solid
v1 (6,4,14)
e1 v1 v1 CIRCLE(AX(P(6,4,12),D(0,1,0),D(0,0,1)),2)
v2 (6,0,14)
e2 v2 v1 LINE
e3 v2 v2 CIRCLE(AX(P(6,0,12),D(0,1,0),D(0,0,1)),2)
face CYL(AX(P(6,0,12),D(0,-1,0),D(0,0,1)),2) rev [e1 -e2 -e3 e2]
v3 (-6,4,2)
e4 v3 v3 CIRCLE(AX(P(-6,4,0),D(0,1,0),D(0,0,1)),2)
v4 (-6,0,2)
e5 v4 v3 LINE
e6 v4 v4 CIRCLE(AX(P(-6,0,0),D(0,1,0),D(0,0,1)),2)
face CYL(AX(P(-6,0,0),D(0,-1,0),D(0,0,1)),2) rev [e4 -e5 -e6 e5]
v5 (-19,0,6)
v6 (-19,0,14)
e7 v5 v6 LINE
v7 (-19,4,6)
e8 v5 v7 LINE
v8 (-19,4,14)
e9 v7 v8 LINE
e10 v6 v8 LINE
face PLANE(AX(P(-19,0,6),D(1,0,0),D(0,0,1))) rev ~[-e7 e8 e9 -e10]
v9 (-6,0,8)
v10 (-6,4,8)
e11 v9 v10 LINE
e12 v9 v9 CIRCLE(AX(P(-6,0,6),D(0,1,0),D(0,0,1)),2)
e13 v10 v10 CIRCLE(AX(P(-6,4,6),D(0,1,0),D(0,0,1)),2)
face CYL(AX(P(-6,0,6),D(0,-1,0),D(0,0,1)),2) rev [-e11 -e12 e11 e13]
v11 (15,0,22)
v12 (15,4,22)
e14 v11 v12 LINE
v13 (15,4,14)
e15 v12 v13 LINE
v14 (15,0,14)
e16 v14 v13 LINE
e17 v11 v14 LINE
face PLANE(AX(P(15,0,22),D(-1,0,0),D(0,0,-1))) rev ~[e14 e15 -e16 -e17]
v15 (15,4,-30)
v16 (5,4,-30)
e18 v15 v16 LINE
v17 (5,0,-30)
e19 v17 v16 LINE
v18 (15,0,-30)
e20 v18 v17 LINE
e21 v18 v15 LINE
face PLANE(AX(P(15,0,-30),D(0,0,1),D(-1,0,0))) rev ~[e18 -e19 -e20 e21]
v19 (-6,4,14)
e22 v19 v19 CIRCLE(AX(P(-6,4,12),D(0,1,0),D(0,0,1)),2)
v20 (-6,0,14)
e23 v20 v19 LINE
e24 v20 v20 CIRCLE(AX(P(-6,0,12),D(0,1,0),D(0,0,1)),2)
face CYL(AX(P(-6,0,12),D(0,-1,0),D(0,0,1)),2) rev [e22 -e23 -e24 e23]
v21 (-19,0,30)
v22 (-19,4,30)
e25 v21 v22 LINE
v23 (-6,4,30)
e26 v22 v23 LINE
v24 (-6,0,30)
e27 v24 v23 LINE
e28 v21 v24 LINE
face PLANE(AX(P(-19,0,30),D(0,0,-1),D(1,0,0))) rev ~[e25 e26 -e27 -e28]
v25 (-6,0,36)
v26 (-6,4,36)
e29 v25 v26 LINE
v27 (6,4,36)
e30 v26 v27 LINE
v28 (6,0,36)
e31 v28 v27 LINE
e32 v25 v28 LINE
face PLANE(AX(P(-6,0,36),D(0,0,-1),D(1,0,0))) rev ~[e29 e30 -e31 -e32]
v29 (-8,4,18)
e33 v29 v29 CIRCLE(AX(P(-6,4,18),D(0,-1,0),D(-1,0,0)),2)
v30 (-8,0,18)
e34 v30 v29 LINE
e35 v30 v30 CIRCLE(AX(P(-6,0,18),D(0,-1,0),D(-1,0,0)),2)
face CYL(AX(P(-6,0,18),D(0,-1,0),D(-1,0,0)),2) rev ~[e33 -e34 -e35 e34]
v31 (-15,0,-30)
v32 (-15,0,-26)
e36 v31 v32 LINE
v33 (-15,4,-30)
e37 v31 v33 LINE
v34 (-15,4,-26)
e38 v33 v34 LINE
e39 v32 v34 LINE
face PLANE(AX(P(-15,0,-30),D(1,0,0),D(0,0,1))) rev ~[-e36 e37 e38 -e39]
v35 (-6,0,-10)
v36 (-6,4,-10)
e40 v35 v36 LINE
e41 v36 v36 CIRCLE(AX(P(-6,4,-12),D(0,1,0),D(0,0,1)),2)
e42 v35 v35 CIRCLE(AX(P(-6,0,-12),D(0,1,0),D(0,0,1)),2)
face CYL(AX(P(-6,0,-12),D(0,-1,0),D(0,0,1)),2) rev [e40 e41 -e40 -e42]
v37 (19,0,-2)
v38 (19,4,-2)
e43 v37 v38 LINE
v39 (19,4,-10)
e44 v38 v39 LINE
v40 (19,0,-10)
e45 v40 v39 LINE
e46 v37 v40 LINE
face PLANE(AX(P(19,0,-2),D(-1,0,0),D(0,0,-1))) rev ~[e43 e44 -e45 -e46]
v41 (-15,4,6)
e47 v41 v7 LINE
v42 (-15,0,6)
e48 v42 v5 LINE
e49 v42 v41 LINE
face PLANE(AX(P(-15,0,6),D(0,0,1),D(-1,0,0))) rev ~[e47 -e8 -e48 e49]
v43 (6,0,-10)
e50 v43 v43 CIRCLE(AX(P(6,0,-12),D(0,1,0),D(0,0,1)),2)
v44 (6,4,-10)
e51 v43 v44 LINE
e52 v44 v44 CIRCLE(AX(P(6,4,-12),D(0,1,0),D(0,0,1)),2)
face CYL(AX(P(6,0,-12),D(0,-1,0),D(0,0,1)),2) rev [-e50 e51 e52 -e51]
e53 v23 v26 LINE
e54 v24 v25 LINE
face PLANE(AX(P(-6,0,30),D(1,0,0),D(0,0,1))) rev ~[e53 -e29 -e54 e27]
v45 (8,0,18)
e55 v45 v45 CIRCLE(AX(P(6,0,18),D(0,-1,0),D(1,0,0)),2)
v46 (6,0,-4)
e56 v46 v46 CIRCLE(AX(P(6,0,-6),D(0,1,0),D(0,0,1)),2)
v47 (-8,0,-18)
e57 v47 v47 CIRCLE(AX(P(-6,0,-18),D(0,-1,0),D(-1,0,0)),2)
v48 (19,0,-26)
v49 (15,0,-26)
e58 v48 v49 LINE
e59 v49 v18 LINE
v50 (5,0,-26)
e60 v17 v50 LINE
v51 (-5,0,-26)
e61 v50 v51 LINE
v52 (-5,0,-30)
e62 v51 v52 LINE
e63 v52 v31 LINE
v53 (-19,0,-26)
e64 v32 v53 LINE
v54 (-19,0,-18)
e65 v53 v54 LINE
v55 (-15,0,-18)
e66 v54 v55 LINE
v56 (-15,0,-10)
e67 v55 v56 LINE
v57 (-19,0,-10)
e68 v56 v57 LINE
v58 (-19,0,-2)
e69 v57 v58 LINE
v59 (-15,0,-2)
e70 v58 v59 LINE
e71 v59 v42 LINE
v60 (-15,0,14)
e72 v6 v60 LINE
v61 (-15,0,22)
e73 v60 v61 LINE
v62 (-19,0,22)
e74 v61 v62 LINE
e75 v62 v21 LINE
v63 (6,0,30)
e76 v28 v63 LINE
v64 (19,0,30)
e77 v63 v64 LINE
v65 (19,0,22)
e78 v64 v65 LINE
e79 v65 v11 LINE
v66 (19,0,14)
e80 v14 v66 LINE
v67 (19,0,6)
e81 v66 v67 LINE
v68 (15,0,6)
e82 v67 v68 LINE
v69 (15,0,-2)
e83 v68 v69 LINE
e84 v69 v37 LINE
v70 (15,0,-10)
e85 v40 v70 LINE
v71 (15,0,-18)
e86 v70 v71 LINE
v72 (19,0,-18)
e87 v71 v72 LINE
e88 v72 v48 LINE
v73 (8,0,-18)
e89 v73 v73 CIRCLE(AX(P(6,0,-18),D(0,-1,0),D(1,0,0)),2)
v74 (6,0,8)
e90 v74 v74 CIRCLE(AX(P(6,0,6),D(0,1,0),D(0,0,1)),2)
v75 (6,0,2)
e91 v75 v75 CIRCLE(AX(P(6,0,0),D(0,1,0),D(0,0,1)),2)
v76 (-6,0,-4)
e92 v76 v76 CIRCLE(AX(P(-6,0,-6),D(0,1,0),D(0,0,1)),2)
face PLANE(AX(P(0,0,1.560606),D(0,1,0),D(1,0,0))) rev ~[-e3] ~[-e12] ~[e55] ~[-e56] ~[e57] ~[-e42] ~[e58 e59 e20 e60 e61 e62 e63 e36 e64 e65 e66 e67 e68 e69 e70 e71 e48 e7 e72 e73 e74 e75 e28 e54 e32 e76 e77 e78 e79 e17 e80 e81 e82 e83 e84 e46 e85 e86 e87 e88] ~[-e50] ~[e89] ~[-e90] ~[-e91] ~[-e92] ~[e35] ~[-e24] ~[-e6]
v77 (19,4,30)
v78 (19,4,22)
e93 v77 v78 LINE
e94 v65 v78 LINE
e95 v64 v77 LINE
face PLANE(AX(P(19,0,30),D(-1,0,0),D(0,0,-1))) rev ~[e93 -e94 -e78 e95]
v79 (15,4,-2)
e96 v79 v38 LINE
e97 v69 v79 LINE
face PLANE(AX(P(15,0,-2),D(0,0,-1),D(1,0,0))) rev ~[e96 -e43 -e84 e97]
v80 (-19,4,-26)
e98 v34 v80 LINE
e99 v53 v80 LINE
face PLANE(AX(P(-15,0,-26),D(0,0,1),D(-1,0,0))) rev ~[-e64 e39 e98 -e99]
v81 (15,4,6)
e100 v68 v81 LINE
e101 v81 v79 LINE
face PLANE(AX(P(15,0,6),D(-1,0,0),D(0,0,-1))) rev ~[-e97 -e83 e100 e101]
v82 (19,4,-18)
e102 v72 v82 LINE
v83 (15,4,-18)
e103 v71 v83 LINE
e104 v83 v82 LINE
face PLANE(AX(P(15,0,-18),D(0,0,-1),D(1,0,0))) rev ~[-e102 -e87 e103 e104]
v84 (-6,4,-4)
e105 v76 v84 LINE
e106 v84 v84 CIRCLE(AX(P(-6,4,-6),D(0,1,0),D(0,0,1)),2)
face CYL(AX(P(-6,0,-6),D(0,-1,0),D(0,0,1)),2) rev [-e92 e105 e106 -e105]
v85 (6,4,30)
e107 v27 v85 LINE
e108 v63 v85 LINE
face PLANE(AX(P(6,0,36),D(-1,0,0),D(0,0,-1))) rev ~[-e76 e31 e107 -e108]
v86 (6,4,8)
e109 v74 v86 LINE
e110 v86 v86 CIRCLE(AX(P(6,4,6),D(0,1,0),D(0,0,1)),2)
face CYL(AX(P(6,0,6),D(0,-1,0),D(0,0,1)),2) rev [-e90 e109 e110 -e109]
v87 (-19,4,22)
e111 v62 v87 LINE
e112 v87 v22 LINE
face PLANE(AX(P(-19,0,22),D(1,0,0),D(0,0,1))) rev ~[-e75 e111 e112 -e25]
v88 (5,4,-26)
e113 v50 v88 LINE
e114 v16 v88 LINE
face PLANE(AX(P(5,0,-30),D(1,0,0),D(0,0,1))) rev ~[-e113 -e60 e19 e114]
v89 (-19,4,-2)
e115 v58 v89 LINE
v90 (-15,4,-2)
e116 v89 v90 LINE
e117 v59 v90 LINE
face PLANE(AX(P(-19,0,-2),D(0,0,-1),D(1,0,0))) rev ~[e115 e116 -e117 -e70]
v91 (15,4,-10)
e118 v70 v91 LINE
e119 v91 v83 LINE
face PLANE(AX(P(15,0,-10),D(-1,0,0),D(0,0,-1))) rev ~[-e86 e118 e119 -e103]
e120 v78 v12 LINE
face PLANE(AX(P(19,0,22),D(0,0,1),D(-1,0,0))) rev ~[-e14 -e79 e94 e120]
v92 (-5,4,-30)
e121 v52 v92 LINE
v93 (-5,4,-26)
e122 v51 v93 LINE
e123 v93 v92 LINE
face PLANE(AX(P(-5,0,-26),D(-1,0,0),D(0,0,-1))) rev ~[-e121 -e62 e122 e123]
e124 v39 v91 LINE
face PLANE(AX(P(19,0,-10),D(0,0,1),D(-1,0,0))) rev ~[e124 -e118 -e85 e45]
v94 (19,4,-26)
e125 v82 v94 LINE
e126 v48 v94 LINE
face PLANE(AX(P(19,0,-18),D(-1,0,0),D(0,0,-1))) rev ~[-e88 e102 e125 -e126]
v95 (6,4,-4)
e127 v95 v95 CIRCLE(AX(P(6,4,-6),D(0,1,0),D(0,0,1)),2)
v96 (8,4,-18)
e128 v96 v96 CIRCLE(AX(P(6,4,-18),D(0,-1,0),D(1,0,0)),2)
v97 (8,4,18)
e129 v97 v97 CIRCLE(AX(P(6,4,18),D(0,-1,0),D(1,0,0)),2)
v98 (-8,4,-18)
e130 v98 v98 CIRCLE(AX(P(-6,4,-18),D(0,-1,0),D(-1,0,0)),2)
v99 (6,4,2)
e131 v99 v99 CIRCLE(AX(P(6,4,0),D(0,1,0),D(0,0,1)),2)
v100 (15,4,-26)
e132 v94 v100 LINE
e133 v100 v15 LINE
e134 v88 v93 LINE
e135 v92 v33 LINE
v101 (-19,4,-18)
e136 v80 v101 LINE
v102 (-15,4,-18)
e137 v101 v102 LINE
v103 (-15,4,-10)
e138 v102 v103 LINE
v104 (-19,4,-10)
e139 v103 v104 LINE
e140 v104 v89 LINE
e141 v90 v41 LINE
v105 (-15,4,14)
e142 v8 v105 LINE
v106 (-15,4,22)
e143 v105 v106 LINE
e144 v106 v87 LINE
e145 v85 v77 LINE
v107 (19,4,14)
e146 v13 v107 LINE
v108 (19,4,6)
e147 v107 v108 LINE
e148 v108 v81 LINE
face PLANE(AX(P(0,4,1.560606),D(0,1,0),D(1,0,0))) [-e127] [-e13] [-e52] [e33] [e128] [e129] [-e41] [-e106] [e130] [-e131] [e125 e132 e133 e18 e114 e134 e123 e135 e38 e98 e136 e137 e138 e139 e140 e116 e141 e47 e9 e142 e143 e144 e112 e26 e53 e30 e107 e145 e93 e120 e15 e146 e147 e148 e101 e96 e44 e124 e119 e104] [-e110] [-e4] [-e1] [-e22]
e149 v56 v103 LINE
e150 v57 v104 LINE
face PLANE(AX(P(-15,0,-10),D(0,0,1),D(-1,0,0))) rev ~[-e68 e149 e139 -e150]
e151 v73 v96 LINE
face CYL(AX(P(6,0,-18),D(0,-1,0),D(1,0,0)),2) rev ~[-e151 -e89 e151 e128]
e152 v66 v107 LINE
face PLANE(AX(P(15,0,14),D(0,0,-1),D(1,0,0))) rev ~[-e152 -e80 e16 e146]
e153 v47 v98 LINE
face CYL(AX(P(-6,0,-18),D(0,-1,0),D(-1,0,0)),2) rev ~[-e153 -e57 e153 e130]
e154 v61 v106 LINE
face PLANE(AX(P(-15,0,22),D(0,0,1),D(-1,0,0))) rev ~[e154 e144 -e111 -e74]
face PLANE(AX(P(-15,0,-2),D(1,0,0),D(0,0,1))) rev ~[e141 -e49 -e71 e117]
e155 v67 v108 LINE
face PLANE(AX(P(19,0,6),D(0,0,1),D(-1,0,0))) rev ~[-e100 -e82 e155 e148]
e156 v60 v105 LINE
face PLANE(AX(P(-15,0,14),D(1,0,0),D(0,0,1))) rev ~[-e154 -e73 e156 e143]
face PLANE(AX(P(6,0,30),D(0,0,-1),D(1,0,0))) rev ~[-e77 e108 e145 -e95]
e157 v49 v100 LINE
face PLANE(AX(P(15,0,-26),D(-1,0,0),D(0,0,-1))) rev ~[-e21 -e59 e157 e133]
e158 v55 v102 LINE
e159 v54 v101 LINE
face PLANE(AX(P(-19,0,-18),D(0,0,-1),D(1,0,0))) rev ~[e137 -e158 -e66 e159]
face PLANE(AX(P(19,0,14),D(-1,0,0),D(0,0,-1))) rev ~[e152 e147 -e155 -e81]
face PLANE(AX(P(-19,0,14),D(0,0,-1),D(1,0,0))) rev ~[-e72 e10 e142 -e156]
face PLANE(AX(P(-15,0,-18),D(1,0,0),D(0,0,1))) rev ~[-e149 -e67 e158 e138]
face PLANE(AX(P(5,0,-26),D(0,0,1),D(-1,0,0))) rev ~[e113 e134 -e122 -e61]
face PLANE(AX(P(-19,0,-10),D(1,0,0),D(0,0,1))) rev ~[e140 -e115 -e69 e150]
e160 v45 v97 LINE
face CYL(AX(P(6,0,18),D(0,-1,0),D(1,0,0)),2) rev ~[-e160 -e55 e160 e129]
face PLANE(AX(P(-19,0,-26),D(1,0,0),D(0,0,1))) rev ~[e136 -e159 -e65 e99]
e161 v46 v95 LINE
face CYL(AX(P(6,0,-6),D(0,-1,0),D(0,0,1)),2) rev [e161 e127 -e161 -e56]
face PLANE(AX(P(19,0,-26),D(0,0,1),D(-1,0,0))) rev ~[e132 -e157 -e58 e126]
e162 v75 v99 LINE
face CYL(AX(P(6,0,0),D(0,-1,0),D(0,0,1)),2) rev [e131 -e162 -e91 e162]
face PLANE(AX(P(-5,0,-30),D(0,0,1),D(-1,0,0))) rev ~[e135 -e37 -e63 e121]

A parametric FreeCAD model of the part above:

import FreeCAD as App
import Part
import Sketcher

V = App.Vector
Q = App.Units.Quantity


def add_polygon(sketch, points):
    """Adds a closed chain of lines whose ends are joined by coincident constraints."""
    first, n = sketch.GeometryCount, len(points)
    for a, b in zip(points, points[1:] + points[:1]):
        sketch.addGeometry(Part.LineSegment(App.Vector(*a, 0), App.Vector(*b, 0)), False)
    for i in range(n):
        sketch.addConstraint(Sketcher.Constraint("Coincident", first + i, 2, first + (i + 1) % n, 1))

doc = App.newDocument("Part")
params = doc.addObject("Spreadsheet::Sheet", "Params")
for row, (alias, value) in enumerate([
    ("sketch1_diameter", "4 mm"),
    ("sketch1_width", "10 mm"),
    ("sketch1_width2", "4 mm"),
    ("sketch1_width3", "13 mm"),
    ("sketch1_height", "8 mm"),
    ("pad1_length", "4 mm"),
], start=1):
    params.set(f"A{row}", alias)
    params.set(f"B{row}", "=" + value)
    params.setAlias(f"B{row}", alias)

body = doc.addObject("PartDesign::Body", "Body")

# Sketch on XZ plane
sketch1 = doc.addObject("Sketcher::SketchObject", "Sketch")
body.addObject(sketch1)
sketch1.AttachmentSupport = (doc.XZ_Plane, [""])
sketch1.MapMode = "FlatFace"
add_polygon(sketch1, [(5, -26), (-5, -26), (-5, -30), (-15, -30), (-15, -26), (-19, -26), (-19, -18), (-15, -18), (-15, -10), (-19, -10), (-19, -2), (-15, -2), (-15, 6), (-19, 6), (-19, 14), (-15, 14), (-15, 22), (-19, 22), (-19, 30), (-6, 30), (-6, 36), (6, 36), (6, 30), (19, 30), (19, 22), (15, 22), (15, 14), (19, 14), (19, 6), (15, 6), (15, -2), (19, -2), (19, -10), (15, -10), (15, -18), (19, -18), (19, -26), (15, -26), (15, -30), (5, -30)])  # lines 0-39
sketch1.addGeometry(Part.Circle(V(-6, 18, 0), V(0, 0, 1), 2), False)  # 40
sketch1.addGeometry(Part.Circle(V(-6, 12, 0), V(0, 0, 1), 2), False)  # 41
sketch1.addGeometry(Part.Circle(V(-6, 6, 0), V(0, 0, 1), 2), False)  # 42
sketch1.addGeometry(Part.Circle(V(6, 18, 0), V(0, 0, 1), 2), False)  # 43
sketch1.addGeometry(Part.Circle(V(6, 12, 0), V(0, 0, 1), 2), False)  # 44
sketch1.addGeometry(Part.Circle(V(6, 6, 0), V(0, 0, 1), 2), False)  # 45
sketch1.addGeometry(Part.Circle(V(-6, 0, 0), V(0, 0, 1), 2), False)  # 46
sketch1.addGeometry(Part.Circle(V(-6, -6, 0), V(0, 0, 1), 2), False)  # 47
sketch1.addGeometry(Part.Circle(V(-6, -12, 0), V(0, 0, 1), 2), False)  # 48
sketch1.addGeometry(Part.Circle(V(-6, -18, 0), V(0, 0, 1), 2), False)  # 49
sketch1.addGeometry(Part.Circle(V(6, 0, 0), V(0, 0, 1), 2), False)  # 50
sketch1.addGeometry(Part.Circle(V(6, -6, 0), V(0, 0, 1), 2), False)  # 51
sketch1.addGeometry(Part.Circle(V(6, -12, 0), V(0, 0, 1), 2), False)  # 52
sketch1.addGeometry(Part.Circle(V(6, -18, 0), V(0, 0, 1), 2), False)  # 53
sketch1.addConstraint(Sketcher.Constraint("Horizontal", 0))
sketch1.addConstraint(Sketcher.Constraint("Vertical", 1))
sketch1.addConstraint(Sketcher.Constraint("Horizontal", 2))
sketch1.addConstraint(Sketcher.Constraint("Vertical", 3))
sketch1.addConstraint(Sketcher.Constraint("Horizontal", 4))
sketch1.addConstraint(Sketcher.Constraint("Vertical", 5))
sketch1.addConstraint(Sketcher.Constraint("Horizontal", 6))
sketch1.addConstraint(Sketcher.Constraint("Vertical", 7))
sketch1.addConstraint(Sketcher.Constraint("Horizontal", 8))
sketch1.addConstraint(Sketcher.Constraint("Vertical", 9))
sketch1.addConstraint(Sketcher.Constraint("Horizontal", 10))
sketch1.addConstraint(Sketcher.Constraint("Vertical", 11))
sketch1.addConstraint(Sketcher.Constraint("Horizontal", 12))
sketch1.addConstraint(Sketcher.Constraint("Vertical", 13))
sketch1.addConstraint(Sketcher.Constraint("Horizontal", 14))
sketch1.addConstraint(Sketcher.Constraint("Vertical", 15))
sketch1.addConstraint(Sketcher.Constraint("Horizontal", 16))
sketch1.addConstraint(Sketcher.Constraint("Vertical", 17))
sketch1.addConstraint(Sketcher.Constraint("Horizontal", 18))
sketch1.addConstraint(Sketcher.Constraint("Vertical", 19))
sketch1.addConstraint(Sketcher.Constraint("Horizontal", 20))
sketch1.addConstraint(Sketcher.Constraint("Vertical", 21))
sketch1.addConstraint(Sketcher.Constraint("Horizontal", 22))
sketch1.addConstraint(Sketcher.Constraint("Vertical", 23))
sketch1.addConstraint(Sketcher.Constraint("Horizontal", 24))
sketch1.addConstraint(Sketcher.Constraint("Vertical", 25))
sketch1.addConstraint(Sketcher.Constraint("Horizontal", 26))
sketch1.addConstraint(Sketcher.Constraint("Vertical", 27))
sketch1.addConstraint(Sketcher.Constraint("Horizontal", 28))
sketch1.addConstraint(Sketcher.Constraint("Vertical", 29))
sketch1.addConstraint(Sketcher.Constraint("Horizontal", 30))
sketch1.addConstraint(Sketcher.Constraint("Vertical", 31))
sketch1.addConstraint(Sketcher.Constraint("Horizontal", 32))
sketch1.addConstraint(Sketcher.Constraint("Vertical", 33))
sketch1.addConstraint(Sketcher.Constraint("Horizontal", 34))
sketch1.addConstraint(Sketcher.Constraint("Vertical", 35))
sketch1.addConstraint(Sketcher.Constraint("Horizontal", 36))
sketch1.addConstraint(Sketcher.Constraint("Vertical", 37))
sketch1.addConstraint(Sketcher.Constraint("Horizontal", 38))
sketch1.addConstraint(Sketcher.Constraint("Vertical", 39))
sketch1.addConstraint(Sketcher.Constraint("Equal", 40, 41))
sketch1.addConstraint(Sketcher.Constraint("Equal", 41, 42))
sketch1.addConstraint(Sketcher.Constraint("Equal", 42, 43))
sketch1.addConstraint(Sketcher.Constraint("Equal", 43, 44))
sketch1.addConstraint(Sketcher.Constraint("Equal", 44, 45))
sketch1.addConstraint(Sketcher.Constraint("Equal", 45, 46))
sketch1.addConstraint(Sketcher.Constraint("Equal", 46, 47))
sketch1.addConstraint(Sketcher.Constraint("Equal", 47, 48))
sketch1.addConstraint(Sketcher.Constraint("Equal", 48, 49))
sketch1.addConstraint(Sketcher.Constraint("Equal", 49, 50))
sketch1.addConstraint(Sketcher.Constraint("Equal", 50, 51))
sketch1.addConstraint(Sketcher.Constraint("Equal", 51, 52))
sketch1.addConstraint(Sketcher.Constraint("Equal", 52, 53))
sketch1.addConstraint(Sketcher.Constraint("Symmetric", 45, 3, 47, 3, -1, 1))
sketch1.addConstraint(Sketcher.Constraint("Symmetric", 44, 3, 48, 3, -1, 1))
sketch1.addConstraint(Sketcher.Constraint("Symmetric", 43, 3, 49, 3, -1, 1))
sketch1.addConstraint(Sketcher.Constraint("Symmetric", 46, 3, 50, 3, -1, 1))
sketch1.addConstraint(Sketcher.Constraint("Symmetric", 42, 3, 51, 3, -1, 1))
sketch1.addConstraint(Sketcher.Constraint("Symmetric", 41, 3, 52, 3, -1, 1))
sketch1.addConstraint(Sketcher.Constraint("Symmetric", 40, 3, 53, 3, -1, 1))
sketch1.addConstraint(Sketcher.Constraint("Symmetric", 40, 3, 43, 3, -2))
sketch1.addConstraint(Sketcher.Constraint("Symmetric", 41, 3, 44, 3, -2))
sketch1.addConstraint(Sketcher.Constraint("Symmetric", 42, 3, 45, 3, -2))
sketch1.addConstraint(Sketcher.Constraint("Symmetric", 18, 2, 21, 2, -2))
sketch1.addConstraint(Sketcher.Constraint("Symmetric", 16, 2, 23, 2, -2))
sketch1.addConstraint(Sketcher.Constraint("Symmetric", 14, 2, 25, 2, -2))
sketch1.addConstraint(Sketcher.Constraint("Symmetric", 12, 2, 27, 2, -2))
sketch1.addConstraint(Sketcher.Constraint("Symmetric", 10, 2, 29, 2, -2))
sketch1.addConstraint(Sketcher.Constraint("Symmetric", 8, 2, 31, 2, -2))
sketch1.addConstraint(Sketcher.Constraint("Symmetric", 6, 2, 33, 2, -2))
sketch1.addConstraint(Sketcher.Constraint("Symmetric", 4, 2, 35, 2, -2))
sketch1.addConstraint(Sketcher.Constraint("Symmetric", 2, 2, 37, 2, -2))
sketch1.addConstraint(Sketcher.Constraint("PointOnObject", 46, 3, -1))
sketch1.addConstraint(Sketcher.Constraint("Horizontal", 0, 2, 3, 2))
sketch1.addConstraint(Sketcher.Constraint("Horizontal", 53, 3, 5, 2))
sketch1.addConstraint(Sketcher.Constraint("Horizontal", 45, 3, 11, 2))
sketch1.addConstraint(Sketcher.Constraint("Vertical", 40, 3, 41, 3))
sketch1.addConstraint(Sketcher.Constraint("Vertical", 41, 3, 42, 3))
sketch1.addConstraint(Sketcher.Constraint("Vertical", 42, 3, 46, 3))
sketch1.addConstraint(Sketcher.Constraint("Vertical", 3, 2, 6, 2))
sketch1.addConstraint(Sketcher.Constraint("Vertical", 5, 2, 8, 2))
sketch1.addConstraint(Sketcher.Constraint("Vertical", 7, 2, 10, 2))
sketch1.addConstraint(Sketcher.Constraint("Vertical", 9, 2, 12, 2))
sketch1.addConstraint(Sketcher.Constraint("Vertical", 11, 2, 14, 2))
sketch1.addConstraint(Sketcher.Constraint("Vertical", 13, 2, 16, 2))
sketch1.addConstraint(Sketcher.Constraint("Vertical", 49, 3, 18, 2))
sketch1.addConstraint(Sketcher.Constraint("Equal", 0, 2))
sketch1.addConstraint(Sketcher.Constraint("Equal", 2, 38))
sketch1.addConstraint(Sketcher.Constraint("Equal", 36, 1))
sketch1.addConstraint(Sketcher.Constraint("Equal", 5, 7))
sketch1.addConstraint(Sketcher.Constraint("Equal", 7, 9))
sketch1.addConstraint(Sketcher.Constraint("Equal", 9, 11))
sketch1.addConstraint(Sketcher.Constraint("Equal", 11, 13))
sketch1.addConstraint(Sketcher.Constraint("Equal", 13, 15))
sketch1.addConstraint(Sketcher.Constraint("Equal", 15, 17))
sketch1.addConstraint(Sketcher.Constraint("Diameter", 40, Q("4 mm")))
sketch1.addConstraint(Sketcher.Constraint("DistanceX", 0, 2, 0, 1, Q("10 mm")))
sketch1.addConstraint(Sketcher.Constraint("DistanceX", 4, 2, 4, 1, Q("4 mm")))
sketch1.addConstraint(Sketcher.Constraint("DistanceX", 18, 1, 18, 2, Q("13 mm")))
sketch1.addConstraint(Sketcher.Constraint("DistanceY", 5, 1, 5, 2, Q("8 mm")))
sketch1.addConstraint(Sketcher.Constraint("DistanceY", 19, 1, 19, 2, Q("6 mm")))
sketch1.addConstraint(Sketcher.Constraint("DistanceY", -1, 1, 40, 3, Q("18 mm")))
sketch1.addConstraint(Sketcher.Constraint("DistanceY", -1, 1, 41, 3, Q("12 mm")))
sketch1.setExpression("Constraints[135]", "Params.sketch1_diameter")
sketch1.setExpression("Constraints[136]", "Params.sketch1_width")
sketch1.setExpression("Constraints[137]", "Params.sketch1_width2")
sketch1.setExpression("Constraints[138]", "Params.sketch1_width3")
sketch1.setExpression("Constraints[139]", "Params.sketch1_height")
pad1 = doc.addObject("PartDesign::Pad", "Pad")
body.addObject(pad1)
pad1.Profile = sketch1
pad1.setExpression("Length", "Params.pad1_length")
pad1.Reversed = True

doc.recompute()
